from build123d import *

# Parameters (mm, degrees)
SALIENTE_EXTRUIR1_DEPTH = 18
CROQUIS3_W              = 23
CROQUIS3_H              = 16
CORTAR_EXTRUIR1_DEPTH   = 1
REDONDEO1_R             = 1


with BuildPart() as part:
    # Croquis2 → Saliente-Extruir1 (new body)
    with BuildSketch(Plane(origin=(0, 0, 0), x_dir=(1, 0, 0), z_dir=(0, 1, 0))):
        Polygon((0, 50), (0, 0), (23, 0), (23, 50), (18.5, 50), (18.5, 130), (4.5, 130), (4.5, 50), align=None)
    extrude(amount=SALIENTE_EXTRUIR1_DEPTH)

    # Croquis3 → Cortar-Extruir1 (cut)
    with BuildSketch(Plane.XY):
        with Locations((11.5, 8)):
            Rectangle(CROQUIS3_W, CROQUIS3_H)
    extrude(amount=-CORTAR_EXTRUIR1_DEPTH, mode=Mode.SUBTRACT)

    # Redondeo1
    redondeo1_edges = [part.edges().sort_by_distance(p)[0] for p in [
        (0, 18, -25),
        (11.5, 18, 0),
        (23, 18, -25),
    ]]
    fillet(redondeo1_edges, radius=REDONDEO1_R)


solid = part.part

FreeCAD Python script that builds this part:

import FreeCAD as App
import Part
import Sketcher
Q = App.Units.Quantity


def edges_at(feature, points):
    """Names of the edges that pass closest to the given points."""
    edges = feature.Shape.Edges
    near = lambda p: min(range(len(edges)), key=lambda i: edges[i].distToShape(Part.Vertex(*p))[0])
    return sorted({f"Edge{near(p) + 1}" for p in points})


def add_polygon(sketch, points):
    """Adds a closed chain of lines whose ends are joined by coincident constraints."""
    first, n = sketch.GeometryCount, len(points)
    for a, b in zip(points, points[1:] + points[:1]):
        sketch.addGeometry(Part.LineSegment(App.Vector(*a, 0), App.Vector(*b, 0)), False)
    for i in range(n):
        sketch.addConstraint(Sketcher.Constraint("Coincident", first + i, 2, first + (i + 1) % n, 1))

doc = App.newDocument("Part")
body = doc.addObject("PartDesign::Body", "Body")

# Sketch on XZ plane
sketch1 = doc.addObject("Sketcher::SketchObject", "Sketch")
body.addObject(sketch1)
sketch1.AttachmentSupport = (doc.XZ_Plane, [""])
sketch1.MapMode = "FlatFace"
add_polygon(sketch1, [(0, -50), (0, 0), (23, 0), (23, -50), (18.5, -50), (18.5, -130), (4.5, -130), (4.5, -50)])  # lines 0-7
sketch1.addConstraint(Sketcher.Constraint("Vertical", 0))
sketch1.addConstraint(Sketcher.Constraint("Horizontal", 1))
sketch1.addConstraint(Sketcher.Constraint("Vertical", 2))
sketch1.addConstraint(Sketcher.Constraint("Horizontal", 3))
sketch1.addConstraint(Sketcher.Constraint("Vertical", 4))
sketch1.addConstraint(Sketcher.Constraint("Horizontal", 5))
sketch1.addConstraint(Sketcher.Constraint("Vertical", 6))
sketch1.addConstraint(Sketcher.Constraint("Horizontal", 7))
sketch1.addConstraint(Sketcher.Constraint("Coincident", 0, 2, -1, 1))
sketch1.addConstraint(Sketcher.Constraint("Horizontal", 3, 2, 6, 2))
sketch1.addConstraint(Sketcher.Constraint("Equal", 3, 7))
sketch1.addConstraint(Sketcher.Constraint("DistanceX", 1, 1, 1, 2, Q("23 mm")))
sketch1.addConstraint(Sketcher.Constraint("DistanceX", 5, 2, 5, 1, Q("14 mm")))
sketch1.addConstraint(Sketcher.Constraint("DistanceY", 0, 1, 0, 2, Q("50 mm")))
sketch1.addConstraint(Sketcher.Constraint("DistanceY", 4, 2, 4, 1, Q("80 mm")))
pad1 = doc.addObject("PartDesign::Pad", "Pad")
body.addObject(pad1)
pad1.Profile = sketch1
pad1.Length = 18
pad1.Reversed = True

# Sketch on XY plane
sketch2 = doc.addObject("Sketcher::SketchObject", "Sketch001")
body.addObject(sketch2)
sketch2.AttachmentSupport = (doc.XY_Plane, [""])
sketch2.MapMode = "FlatFace"
add_polygon(sketch2, [(0, 16), (0, 0), (23, 0), (23, 16)])  # lines 0-3
sketch2.addConstraint(Sketcher.Constraint("Vertical", 0))
sketch2.addConstraint(Sketcher.Constraint("Horizontal", 1))
sketch2.addConstraint(Sketcher.Constraint("Vertical", 2))
sketch2.addConstraint(Sketcher.Constraint("Horizontal", 3))
sketch2.addConstraint(Sketcher.Constraint("Coincident", 0, 2, -1, 1))
sketch2.addConstraint(Sketcher.Constraint("DistanceX", 1, 1, 1, 2, Q("23 mm")))
sketch2.addConstraint(Sketcher.Constraint("DistanceY", 0, 2, 0, 1, Q("16 mm")))
pocket1 = doc.addObject("PartDesign::Pocket", "Pocket")
body.addObject(pocket1)
pocket1.Profile = sketch2
pocket1.Length = 1
doc.recompute()

fillet = doc.addObject("PartDesign::Fillet", "Fillet")
body.addObject(fillet)
fillet.Base = (pocket1, edges_at(pocket1, [(0, 18, -25), (11.5, 18, 0), (23, 18, -25)]))
fillet.Radius = 1

doc.recompute()
